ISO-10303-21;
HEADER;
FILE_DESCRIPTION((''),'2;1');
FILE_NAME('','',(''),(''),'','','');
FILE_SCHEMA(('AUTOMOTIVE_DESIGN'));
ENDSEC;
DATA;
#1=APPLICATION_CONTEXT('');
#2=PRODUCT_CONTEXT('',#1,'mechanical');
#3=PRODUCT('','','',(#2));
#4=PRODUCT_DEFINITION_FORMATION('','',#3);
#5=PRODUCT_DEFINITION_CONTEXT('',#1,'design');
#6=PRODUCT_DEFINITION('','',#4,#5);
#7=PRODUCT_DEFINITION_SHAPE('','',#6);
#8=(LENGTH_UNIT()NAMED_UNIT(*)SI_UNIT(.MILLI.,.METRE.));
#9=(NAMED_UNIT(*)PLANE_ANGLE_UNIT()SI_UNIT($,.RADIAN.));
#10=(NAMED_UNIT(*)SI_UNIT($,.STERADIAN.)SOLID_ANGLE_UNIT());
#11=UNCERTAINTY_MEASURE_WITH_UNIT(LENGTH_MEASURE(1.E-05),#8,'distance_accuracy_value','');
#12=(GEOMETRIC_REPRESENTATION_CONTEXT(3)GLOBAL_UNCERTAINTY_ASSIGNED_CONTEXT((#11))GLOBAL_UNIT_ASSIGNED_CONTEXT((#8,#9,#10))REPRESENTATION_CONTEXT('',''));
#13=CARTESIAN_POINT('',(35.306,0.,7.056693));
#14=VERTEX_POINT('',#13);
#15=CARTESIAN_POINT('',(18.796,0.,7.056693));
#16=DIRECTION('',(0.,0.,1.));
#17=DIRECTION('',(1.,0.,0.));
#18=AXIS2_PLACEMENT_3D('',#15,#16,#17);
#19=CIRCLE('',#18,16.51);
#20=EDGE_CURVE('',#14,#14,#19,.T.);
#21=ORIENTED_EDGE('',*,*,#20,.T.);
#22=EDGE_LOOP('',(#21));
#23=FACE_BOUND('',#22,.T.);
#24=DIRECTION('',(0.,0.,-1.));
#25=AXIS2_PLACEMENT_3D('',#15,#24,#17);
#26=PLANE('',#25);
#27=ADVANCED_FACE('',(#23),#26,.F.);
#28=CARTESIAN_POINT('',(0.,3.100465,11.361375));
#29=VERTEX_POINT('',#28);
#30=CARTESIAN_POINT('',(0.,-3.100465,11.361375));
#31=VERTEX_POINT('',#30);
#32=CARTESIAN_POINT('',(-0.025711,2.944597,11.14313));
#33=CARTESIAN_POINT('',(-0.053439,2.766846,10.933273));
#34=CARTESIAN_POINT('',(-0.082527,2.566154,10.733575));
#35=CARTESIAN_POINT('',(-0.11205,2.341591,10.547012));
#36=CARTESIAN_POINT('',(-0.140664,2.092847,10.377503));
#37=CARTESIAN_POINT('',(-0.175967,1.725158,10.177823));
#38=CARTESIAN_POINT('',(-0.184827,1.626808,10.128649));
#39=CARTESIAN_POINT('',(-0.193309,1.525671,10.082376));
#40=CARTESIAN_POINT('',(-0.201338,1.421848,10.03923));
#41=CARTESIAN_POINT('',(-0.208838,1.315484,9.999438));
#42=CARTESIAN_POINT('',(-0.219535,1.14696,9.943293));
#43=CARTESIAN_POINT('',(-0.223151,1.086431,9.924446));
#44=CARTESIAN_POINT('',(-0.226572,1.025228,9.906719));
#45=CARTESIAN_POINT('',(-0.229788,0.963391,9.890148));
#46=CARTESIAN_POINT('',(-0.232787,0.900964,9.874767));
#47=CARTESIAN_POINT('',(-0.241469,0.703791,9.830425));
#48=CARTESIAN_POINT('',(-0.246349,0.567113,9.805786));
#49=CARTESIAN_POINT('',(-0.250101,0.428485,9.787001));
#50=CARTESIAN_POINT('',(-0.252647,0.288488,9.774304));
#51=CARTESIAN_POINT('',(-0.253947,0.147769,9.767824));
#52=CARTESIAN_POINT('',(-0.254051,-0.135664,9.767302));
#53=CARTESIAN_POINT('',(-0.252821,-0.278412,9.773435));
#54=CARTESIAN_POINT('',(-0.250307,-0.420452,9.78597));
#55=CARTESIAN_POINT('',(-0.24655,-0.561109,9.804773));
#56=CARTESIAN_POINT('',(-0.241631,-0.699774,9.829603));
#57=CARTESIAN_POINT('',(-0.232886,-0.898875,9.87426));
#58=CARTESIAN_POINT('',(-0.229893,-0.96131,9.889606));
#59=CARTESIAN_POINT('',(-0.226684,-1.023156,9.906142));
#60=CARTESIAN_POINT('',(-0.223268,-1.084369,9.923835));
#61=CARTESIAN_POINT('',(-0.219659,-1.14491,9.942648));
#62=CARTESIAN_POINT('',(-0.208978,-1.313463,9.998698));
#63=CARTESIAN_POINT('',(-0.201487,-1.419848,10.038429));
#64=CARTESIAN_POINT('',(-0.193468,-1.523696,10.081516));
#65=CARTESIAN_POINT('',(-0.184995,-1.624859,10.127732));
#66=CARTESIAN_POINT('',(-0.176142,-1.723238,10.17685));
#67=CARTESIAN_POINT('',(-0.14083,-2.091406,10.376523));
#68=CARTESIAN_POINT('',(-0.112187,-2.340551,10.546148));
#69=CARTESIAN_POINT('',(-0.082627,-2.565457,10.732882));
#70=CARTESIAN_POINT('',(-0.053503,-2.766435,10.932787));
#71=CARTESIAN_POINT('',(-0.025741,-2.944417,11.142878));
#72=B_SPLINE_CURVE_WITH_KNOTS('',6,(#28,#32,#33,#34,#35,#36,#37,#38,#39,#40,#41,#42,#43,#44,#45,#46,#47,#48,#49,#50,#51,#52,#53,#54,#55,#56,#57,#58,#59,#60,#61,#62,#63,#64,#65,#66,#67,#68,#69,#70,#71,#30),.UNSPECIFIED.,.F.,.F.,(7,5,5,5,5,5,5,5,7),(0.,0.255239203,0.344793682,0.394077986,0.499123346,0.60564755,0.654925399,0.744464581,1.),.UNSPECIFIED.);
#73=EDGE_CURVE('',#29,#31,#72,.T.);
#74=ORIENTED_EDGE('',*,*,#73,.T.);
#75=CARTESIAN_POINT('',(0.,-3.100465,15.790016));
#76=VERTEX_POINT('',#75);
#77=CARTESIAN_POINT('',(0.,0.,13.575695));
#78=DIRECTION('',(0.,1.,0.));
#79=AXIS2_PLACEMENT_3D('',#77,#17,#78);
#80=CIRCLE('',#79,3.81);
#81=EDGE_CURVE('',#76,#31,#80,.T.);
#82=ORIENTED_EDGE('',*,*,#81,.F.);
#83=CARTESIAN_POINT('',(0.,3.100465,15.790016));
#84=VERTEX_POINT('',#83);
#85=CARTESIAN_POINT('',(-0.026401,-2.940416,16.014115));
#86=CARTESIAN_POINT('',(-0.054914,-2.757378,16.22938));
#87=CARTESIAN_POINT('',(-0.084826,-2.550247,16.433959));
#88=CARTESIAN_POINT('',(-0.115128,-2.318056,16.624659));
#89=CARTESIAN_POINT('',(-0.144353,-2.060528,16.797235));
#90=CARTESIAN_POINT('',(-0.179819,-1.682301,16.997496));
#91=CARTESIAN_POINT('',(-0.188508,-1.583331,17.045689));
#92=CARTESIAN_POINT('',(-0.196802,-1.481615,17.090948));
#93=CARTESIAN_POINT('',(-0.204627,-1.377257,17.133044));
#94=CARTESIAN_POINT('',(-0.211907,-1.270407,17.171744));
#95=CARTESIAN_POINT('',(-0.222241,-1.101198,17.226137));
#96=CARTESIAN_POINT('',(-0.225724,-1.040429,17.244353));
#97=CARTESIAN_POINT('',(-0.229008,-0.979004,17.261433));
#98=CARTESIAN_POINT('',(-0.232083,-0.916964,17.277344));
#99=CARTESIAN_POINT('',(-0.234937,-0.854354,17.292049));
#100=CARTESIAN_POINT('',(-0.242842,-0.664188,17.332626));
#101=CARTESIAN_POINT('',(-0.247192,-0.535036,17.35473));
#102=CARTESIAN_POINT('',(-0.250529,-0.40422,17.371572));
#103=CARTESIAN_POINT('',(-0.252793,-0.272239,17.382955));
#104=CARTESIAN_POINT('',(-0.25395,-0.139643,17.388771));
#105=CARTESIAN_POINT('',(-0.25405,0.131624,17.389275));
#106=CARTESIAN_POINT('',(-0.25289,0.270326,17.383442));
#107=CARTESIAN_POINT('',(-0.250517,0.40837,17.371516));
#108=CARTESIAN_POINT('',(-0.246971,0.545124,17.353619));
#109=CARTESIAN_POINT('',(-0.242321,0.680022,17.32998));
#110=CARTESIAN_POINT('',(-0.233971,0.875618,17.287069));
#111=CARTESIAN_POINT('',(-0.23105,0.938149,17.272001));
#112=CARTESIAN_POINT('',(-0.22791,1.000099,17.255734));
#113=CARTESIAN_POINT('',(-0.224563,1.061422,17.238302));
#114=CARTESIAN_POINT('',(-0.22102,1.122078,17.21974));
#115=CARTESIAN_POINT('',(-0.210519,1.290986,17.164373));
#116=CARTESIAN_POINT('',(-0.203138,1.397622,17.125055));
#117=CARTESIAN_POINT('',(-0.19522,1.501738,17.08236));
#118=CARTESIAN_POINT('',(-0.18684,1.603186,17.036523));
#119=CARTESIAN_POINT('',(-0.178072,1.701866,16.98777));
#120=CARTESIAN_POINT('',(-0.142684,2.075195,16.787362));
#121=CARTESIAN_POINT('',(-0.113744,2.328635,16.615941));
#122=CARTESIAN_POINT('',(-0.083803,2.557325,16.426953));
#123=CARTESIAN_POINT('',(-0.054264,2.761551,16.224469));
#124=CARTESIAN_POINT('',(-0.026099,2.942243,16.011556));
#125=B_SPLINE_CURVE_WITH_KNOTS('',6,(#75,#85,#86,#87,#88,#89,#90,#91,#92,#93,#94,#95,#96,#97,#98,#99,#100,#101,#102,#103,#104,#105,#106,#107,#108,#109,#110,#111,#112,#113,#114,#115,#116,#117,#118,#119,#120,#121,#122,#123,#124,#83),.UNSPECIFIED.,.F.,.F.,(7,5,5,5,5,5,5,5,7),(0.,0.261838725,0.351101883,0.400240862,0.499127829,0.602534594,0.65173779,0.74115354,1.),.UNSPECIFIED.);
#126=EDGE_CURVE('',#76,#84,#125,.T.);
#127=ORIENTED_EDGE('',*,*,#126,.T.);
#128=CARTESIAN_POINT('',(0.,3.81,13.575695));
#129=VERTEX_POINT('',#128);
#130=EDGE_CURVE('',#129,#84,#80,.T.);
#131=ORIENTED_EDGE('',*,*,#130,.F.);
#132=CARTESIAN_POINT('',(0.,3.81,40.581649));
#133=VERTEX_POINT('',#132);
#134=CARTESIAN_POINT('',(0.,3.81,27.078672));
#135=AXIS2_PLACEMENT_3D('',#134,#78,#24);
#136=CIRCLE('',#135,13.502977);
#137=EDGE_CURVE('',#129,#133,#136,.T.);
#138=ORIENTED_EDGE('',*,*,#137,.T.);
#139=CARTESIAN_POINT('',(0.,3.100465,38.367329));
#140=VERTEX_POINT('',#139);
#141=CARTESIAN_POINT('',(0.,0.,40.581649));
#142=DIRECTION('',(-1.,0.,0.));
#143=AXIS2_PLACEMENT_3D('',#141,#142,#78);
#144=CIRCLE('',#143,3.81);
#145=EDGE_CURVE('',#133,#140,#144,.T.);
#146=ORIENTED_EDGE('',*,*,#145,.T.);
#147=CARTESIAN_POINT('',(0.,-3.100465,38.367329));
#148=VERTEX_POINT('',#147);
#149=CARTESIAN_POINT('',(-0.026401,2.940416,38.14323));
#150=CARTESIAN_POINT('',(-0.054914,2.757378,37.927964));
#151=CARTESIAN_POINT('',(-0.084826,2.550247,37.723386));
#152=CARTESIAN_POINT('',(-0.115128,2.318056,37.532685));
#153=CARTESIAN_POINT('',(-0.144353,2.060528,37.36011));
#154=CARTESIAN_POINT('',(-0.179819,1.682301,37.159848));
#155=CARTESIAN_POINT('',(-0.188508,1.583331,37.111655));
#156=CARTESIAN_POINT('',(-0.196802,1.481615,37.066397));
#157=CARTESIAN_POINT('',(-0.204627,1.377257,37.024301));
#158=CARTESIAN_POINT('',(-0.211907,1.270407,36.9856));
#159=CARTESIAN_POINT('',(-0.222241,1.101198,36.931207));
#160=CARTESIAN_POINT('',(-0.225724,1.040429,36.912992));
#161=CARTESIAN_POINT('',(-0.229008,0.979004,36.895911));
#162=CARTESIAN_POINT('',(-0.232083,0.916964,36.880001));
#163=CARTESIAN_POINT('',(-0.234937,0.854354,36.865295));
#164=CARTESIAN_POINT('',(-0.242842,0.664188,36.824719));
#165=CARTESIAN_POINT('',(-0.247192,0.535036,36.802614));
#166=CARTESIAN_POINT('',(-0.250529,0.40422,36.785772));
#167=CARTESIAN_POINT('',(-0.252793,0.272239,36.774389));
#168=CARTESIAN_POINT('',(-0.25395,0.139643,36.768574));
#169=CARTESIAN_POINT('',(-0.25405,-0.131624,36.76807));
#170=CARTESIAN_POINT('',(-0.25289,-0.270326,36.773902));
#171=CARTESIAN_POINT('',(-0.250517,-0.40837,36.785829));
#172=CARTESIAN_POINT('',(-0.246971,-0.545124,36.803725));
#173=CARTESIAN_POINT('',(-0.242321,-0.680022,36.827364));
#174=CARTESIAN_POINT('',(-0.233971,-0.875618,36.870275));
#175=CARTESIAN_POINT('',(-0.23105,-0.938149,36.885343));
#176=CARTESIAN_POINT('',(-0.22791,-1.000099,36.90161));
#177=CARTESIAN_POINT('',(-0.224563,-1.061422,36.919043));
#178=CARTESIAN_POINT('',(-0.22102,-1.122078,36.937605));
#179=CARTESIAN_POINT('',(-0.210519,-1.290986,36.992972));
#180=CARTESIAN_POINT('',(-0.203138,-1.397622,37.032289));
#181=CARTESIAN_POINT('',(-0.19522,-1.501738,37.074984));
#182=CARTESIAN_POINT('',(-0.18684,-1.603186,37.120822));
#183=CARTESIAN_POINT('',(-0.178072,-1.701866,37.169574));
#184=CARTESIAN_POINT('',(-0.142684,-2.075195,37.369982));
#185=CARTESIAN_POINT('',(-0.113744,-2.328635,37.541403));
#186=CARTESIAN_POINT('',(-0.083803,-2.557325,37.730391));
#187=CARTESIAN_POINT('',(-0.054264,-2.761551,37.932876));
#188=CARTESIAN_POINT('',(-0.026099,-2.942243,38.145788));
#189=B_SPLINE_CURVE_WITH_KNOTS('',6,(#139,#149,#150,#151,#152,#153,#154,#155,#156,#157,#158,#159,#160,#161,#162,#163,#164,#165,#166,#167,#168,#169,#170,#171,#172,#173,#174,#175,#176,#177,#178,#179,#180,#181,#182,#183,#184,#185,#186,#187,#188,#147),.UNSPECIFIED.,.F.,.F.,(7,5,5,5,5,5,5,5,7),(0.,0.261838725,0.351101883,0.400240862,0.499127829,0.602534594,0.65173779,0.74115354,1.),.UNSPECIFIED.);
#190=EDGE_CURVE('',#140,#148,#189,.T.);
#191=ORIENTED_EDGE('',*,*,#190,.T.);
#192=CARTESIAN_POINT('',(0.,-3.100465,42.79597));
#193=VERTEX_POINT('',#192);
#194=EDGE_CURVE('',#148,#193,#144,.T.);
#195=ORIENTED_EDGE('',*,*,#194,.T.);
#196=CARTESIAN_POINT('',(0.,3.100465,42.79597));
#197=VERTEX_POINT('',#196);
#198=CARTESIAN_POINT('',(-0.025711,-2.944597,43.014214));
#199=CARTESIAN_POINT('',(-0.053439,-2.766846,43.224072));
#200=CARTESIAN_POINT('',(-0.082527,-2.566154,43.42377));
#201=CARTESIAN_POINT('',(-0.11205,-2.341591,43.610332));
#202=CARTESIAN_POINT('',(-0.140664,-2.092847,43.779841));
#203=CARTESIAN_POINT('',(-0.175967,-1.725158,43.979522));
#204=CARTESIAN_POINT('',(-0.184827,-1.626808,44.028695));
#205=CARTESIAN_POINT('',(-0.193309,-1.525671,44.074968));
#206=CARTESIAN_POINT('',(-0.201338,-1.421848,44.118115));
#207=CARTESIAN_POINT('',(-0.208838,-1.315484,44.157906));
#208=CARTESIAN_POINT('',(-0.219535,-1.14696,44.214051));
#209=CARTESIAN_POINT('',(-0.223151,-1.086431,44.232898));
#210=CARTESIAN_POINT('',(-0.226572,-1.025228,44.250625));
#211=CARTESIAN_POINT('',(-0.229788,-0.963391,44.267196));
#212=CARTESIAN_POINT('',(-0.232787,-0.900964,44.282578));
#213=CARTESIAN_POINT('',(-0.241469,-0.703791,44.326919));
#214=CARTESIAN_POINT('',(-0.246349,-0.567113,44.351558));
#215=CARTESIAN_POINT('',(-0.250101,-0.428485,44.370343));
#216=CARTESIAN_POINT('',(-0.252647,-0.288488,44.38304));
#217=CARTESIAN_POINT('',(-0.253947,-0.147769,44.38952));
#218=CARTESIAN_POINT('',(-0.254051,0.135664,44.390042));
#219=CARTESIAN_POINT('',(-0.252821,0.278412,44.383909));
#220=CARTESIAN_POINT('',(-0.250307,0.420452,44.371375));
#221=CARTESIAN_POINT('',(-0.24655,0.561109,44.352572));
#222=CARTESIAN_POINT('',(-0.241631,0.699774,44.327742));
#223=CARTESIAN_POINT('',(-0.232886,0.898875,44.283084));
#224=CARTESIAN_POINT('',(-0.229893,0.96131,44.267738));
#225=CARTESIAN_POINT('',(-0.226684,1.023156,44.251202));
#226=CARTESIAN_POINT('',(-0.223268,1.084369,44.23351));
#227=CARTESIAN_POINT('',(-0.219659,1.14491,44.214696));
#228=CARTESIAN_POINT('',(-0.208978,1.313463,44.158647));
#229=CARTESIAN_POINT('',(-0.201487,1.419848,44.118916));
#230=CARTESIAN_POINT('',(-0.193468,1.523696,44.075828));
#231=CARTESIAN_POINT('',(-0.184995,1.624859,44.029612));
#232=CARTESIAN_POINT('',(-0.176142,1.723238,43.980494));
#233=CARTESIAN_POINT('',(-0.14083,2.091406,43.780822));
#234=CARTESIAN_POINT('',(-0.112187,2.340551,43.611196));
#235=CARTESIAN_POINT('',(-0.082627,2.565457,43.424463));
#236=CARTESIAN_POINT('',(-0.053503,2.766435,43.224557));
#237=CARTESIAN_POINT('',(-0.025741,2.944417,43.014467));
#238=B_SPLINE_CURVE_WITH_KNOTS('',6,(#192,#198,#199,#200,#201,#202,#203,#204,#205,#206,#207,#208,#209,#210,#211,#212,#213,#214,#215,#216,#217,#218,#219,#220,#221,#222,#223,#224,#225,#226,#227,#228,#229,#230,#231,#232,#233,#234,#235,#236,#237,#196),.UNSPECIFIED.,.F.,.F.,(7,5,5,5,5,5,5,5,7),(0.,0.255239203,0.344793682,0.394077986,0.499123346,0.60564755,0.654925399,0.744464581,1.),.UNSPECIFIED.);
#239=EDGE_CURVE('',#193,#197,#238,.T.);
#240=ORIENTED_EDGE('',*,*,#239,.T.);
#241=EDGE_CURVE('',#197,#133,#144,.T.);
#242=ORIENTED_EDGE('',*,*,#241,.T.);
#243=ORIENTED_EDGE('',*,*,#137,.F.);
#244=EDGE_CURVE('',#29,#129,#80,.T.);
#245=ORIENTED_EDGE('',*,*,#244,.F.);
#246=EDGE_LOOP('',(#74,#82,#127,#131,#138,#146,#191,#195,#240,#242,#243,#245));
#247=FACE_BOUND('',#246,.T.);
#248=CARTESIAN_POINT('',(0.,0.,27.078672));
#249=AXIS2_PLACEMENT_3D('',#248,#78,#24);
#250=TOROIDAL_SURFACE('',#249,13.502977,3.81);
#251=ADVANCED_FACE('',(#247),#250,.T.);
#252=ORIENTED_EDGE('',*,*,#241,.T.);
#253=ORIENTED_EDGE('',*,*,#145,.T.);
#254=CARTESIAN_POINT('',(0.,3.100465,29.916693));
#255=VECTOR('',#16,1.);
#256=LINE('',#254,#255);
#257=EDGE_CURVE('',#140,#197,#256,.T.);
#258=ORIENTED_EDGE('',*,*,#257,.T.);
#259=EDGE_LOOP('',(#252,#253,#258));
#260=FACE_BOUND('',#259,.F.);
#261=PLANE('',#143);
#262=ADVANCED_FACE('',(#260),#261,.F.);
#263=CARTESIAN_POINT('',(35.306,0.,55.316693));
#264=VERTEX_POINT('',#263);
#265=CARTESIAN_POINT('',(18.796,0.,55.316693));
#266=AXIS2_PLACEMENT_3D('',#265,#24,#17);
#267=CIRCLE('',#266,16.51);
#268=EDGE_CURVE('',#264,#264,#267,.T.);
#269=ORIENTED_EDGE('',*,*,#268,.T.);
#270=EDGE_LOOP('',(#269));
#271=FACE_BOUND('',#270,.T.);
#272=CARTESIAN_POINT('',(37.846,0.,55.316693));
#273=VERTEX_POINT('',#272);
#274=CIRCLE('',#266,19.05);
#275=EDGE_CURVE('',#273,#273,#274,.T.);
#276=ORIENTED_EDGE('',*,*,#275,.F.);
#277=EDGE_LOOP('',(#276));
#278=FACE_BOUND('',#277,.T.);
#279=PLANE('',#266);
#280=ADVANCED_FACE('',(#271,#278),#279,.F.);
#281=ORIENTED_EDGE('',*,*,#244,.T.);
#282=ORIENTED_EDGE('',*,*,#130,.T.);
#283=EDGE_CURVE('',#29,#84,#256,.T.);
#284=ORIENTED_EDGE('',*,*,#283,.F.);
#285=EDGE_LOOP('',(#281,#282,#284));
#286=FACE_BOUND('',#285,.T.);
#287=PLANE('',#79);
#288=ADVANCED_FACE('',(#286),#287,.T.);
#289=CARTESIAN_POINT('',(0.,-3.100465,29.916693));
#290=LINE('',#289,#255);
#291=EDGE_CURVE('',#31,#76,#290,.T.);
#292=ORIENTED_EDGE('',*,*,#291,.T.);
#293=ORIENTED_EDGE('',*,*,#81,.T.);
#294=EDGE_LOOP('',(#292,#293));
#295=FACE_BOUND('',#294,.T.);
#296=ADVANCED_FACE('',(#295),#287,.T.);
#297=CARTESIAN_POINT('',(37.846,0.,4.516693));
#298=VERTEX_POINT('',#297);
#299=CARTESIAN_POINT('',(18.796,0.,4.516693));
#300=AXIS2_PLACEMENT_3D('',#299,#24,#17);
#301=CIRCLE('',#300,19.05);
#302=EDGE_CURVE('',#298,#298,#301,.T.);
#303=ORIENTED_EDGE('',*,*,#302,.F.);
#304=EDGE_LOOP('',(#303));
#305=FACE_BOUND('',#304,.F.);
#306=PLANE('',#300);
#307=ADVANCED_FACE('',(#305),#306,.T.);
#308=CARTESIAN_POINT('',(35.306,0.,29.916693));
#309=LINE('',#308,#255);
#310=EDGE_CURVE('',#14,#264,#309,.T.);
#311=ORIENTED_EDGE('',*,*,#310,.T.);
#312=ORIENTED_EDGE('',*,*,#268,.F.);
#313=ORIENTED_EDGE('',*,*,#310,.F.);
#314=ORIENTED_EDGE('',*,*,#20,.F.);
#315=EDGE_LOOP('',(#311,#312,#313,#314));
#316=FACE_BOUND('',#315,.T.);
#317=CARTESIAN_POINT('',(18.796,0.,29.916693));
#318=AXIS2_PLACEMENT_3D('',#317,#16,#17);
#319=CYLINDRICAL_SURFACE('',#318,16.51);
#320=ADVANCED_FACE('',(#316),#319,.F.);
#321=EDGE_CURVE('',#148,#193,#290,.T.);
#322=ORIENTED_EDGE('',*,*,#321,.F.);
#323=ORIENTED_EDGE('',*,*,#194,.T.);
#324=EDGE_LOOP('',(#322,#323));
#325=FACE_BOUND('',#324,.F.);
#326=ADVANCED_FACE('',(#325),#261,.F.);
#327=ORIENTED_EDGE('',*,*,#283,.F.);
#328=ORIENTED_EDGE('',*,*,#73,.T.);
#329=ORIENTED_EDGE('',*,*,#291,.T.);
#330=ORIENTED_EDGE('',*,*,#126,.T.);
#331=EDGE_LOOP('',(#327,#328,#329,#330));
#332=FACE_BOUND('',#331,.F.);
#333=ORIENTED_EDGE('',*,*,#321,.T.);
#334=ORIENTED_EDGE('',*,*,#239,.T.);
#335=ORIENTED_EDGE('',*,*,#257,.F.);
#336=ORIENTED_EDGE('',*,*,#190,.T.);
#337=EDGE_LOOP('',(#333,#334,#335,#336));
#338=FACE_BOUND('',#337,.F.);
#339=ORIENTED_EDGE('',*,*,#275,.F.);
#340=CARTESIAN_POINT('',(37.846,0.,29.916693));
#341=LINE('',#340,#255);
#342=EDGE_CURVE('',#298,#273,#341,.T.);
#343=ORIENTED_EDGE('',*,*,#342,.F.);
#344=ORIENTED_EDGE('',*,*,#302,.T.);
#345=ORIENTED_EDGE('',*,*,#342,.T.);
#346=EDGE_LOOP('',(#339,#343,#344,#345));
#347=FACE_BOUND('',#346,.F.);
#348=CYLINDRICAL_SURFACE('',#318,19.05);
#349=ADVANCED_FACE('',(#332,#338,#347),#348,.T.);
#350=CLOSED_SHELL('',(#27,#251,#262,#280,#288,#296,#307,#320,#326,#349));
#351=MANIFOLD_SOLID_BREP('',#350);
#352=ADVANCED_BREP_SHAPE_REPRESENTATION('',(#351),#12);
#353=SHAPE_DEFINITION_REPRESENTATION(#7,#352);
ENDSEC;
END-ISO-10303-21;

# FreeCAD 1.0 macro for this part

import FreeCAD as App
import Part
import Sketcher

V = App.Vector
Q = App.Units.Quantity


def faces_at(feature, points):
    """Names of the faces that lie closest to the given points."""
    faces = feature.Shape.Faces
    near = lambda p: min(range(len(faces)), key=lambda i: faces[i].distToShape(Part.Vertex(*p))[0])
    return sorted({f"Face{near(p) + 1}" for p in points})


def add_polygon(sketch, points):
    """Adds a closed chain of lines whose ends are joined by coincident constraints."""
    first, n = sketch.GeometryCount, len(points)
    for a, b in zip(points, points[1:] + points[:1]):
        sketch.addGeometry(Part.LineSegment(App.Vector(*a, 0), App.Vector(*b, 0)), False)
    for i in range(n):
        sketch.addConstraint(Sketcher.Constraint("Coincident", first + i, 2, first + (i + 1) % n, 1))

doc = App.newDocument("Part")
body = doc.addObject("PartDesign::Body", "Body")

sketch1 = body.newObject("Sketcher::SketchObject", "Sketch")
sketch1.AttachmentSupport = (doc.getObject("XZ_Plane"), [""])
sketch1.MapMode = "FlatFace"
add_polygon(sketch1, [(18.796, 55.316693), (18.796, 4.516693), (37.846, 4.516693), (37.846, 55.316693)])
sketch1.addGeometry(Part.LineSegment(V(18.796, 55.316693, 0), V(18.796, 4.516693, 0)), True)
sketch1.addConstraint(Sketcher.Constraint("Vertical", 0))
sketch1.addConstraint(Sketcher.Constraint("Horizontal", 1))
sketch1.addConstraint(Sketcher.Constraint("Vertical", 2))
sketch1.addConstraint(Sketcher.Constraint("Horizontal", 3))
sketch1.addConstraint(Sketcher.Constraint("Vertical", 4))
sketch1.addConstraint(Sketcher.Constraint("Coincident", 4, 1, 3, 2))
sketch1.addConstraint(Sketcher.Constraint("Horizontal", 1, 2, 4, 2))
sketch1.addConstraint(Sketcher.Constraint("DistanceY", 0, 2, 0, 1, Q("2 in")))
sketch1.addConstraint(Sketcher.Constraint("DistanceX", 1, 1, 1, 2, Q("0.75 in")))
sketch1.addConstraint(Sketcher.Constraint("DistanceX", -1, 1, 0, 2, Q("0.74 in")))
sketch1.addConstraint(Sketcher.Constraint("DistanceY", -1, 1, 0, 2, 4.516693))
revolution = body.newObject("PartDesign::Revolution", "Revolution")
revolution.Profile = sketch1
revolution.ReferenceAxis = (sketch1, ["Axis0"])
revolution.Angle = 360
doc.recompute()

thickness = body.newObject("PartDesign::Thickness", "Thickness")
thickness.Base = (revolution, faces_at(revolution, [(18.796, 0, 55.317)]))
thickness.Value = Q("0.1 in")
thickness.Reversed = True
thickness.Join = "Arc"

sketch2 = body.newObject("Sketcher::SketchObject", "Sketch001")
sketch2.AttachmentSupport = (doc.getObject("YZ_Plane"), [""])
sketch2.MapMode = "FlatFace"
sketch2.addGeometry(Part.Circle(V(0, 13.575695, 0), V(0, 0, 1), 3.81), False)
sketch2.addGeometry(Part.LineSegment(V(0, 27.078672, 0), V(10, 27.078672, 0)), True)
sketch2.addConstraint(Sketcher.Constraint("Horizontal", 1))
sketch2.addConstraint(Sketcher.Constraint("PointOnObject", 0, 3, -2))
sketch2.addConstraint(Sketcher.Constraint("PointOnObject", 1, 1, -2))
sketch2.addConstraint(Sketcher.Constraint("Diameter", 0, Q("0.3 in")))
sketch2.addConstraint(Sketcher.Constraint("DistanceX", 1, 1, 1, 2, 10.0))
sketch2.addConstraint(Sketcher.Constraint("DistanceY", -1, 1, 0, 3, 13.575695))
sketch2.addConstraint(Sketcher.Constraint("DistanceY", -1, 1, 1, 1, 27.078672))
revolution2 = body.newObject("PartDesign::Revolution", "Revolution001")
revolution2.Profile = sketch2
revolution2.ReferenceAxis = (sketch2, ["Axis0"])
revolution2.Angle = 180

doc.recompute()
